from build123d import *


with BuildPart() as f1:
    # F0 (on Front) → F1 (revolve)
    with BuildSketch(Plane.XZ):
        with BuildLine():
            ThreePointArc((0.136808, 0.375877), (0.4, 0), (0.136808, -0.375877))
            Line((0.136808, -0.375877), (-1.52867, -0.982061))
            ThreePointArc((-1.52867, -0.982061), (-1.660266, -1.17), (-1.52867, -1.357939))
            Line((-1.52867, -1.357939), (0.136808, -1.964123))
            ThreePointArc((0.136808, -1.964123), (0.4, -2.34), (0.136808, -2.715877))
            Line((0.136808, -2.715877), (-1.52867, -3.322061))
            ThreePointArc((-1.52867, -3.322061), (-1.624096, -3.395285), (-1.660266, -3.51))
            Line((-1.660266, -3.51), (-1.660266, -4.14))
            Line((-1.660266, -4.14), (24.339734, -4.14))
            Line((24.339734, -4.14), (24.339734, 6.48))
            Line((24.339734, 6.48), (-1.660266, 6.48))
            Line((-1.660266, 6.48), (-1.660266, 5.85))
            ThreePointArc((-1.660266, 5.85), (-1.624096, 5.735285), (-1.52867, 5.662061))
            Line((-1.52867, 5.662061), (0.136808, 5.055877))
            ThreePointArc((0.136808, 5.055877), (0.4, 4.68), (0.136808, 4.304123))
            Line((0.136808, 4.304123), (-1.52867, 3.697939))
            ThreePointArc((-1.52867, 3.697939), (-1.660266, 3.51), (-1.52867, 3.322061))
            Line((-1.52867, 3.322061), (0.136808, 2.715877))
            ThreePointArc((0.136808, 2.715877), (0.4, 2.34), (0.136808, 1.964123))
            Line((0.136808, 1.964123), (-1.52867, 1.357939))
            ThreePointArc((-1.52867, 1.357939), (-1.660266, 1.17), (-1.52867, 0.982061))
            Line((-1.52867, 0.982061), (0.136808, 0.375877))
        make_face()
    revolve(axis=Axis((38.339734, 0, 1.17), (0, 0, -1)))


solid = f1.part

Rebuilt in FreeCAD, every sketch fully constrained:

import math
import FreeCAD as App
import Part
import Sketcher
Q = App.Units.Quantity

doc = App.newDocument("Part")
params = doc.addObject("Spreadsheet::Sheet", "Params")
for row, (alias, value) in enumerate([
    ("sketch1_radius", "0.4 mm"),
    ("sketch1_radius2", "0.200001 mm"),
    ("sketch1_width", "26 mm"),
    ("sketch1_height", "0.63 mm"),
    ("sketch1_height2", "10.62 mm"),
    ("revolution_angle", "360 deg"),
], start=1):
    params.set(f"A{row}", alias)
    params.set(f"B{row}", "=" + value)
    params.setAlias(f"B{row}", alias)

body = doc.addObject("PartDesign::Body", "Body")

sketch1 = body.newObject("Sketcher::SketchObject", "Sketch")
sketch1.AttachmentSupport = (doc.getObject("XZ_Plane"), [""])
sketch1.MapMode = "FlatFace"
sketch1.addGeometry([
    Part.ArcOfCircle(Part.Circle(App.Vector(0, 0, 0), App.Vector(0, 0, 1), 0.4), math.radians(-70.000019), math.radians(70.000019)),
    Part.LineSegment(App.Vector(0.136808, -0.375877, 0), App.Vector(-1.52867, -0.982061, 0)),
    Part.ArcOfCircle(Part.Circle(App.Vector(-1.460265, -1.17, 0), App.Vector(0, 0, 1), 0.200001), math.radians(110.000125), math.radians(249.999875)),
    Part.LineSegment(App.Vector(-1.52867, -1.357939, 0), App.Vector(0.136808, -1.964123, 0)),
    Part.ArcOfCircle(Part.Circle(App.Vector(0, -2.34, 0), App.Vector(0, 0, 1), 0.4), math.radians(-70.000019), math.radians(70.000019)),
    Part.LineSegment(App.Vector(0.136808, -2.715877, 0), App.Vector(-1.52867, -3.322061, 0)),
    Part.ArcOfCircle(Part.Circle(App.Vector(-1.460263, -3.510002, 0), App.Vector(0, 0, 1), 0.200003), math.radians(110.000688), math.radians(179.999437)),
    Part.LineSegment(App.Vector(-1.660266, -3.51, 0), App.Vector(-1.660266, -4.14, 0)),
    Part.LineSegment(App.Vector(-1.660266, -4.14, 0), App.Vector(24.339734, -4.14, 0)),
    Part.LineSegment(App.Vector(24.339734, -4.14, 0), App.Vector(24.339734, 6.48, 0)),
    Part.LineSegment(App.Vector(24.339734, 6.48, 0), App.Vector(-1.660266, 6.48, 0)),
    Part.LineSegment(App.Vector(-1.660266, 6.48, 0), App.Vector(-1.660266, 5.85, 0)),
    Part.ArcOfCircle(Part.Circle(App.Vector(-1.460263, 5.850002, 0), App.Vector(0, 0, 1), 0.200003), math.radians(-179.999437), math.radians(-110.000688)),
    Part.LineSegment(App.Vector(-1.52867, 5.662061, 0), App.Vector(0.136808, 5.055877, 0)),
    Part.ArcOfCircle(Part.Circle(App.Vector(0, 4.68, 0), App.Vector(0, 0, 1), 0.4), math.radians(-70.000019), math.radians(70.000019)),
    Part.LineSegment(App.Vector(0.136808, 4.304123, 0), App.Vector(-1.52867, 3.697939, 0)),
    Part.ArcOfCircle(Part.Circle(App.Vector(-1.460265, 3.51, 0), App.Vector(0, 0, 1), 0.200001), math.radians(110.000125), math.radians(249.999875)),
    Part.LineSegment(App.Vector(-1.52867, 3.322061, 0), App.Vector(0.136808, 2.715877, 0)),
    Part.ArcOfCircle(Part.Circle(App.Vector(0, 2.34, 0), App.Vector(0, 0, 1), 0.4), math.radians(-70.000019), math.radians(70.000019)),
    Part.LineSegment(App.Vector(0.136808, 1.964123, 0), App.Vector(-1.52867, 1.357939, 0)),
    Part.ArcOfCircle(Part.Circle(App.Vector(-1.460265, 1.17, 0), App.Vector(0, 0, 1), 0.200001), math.radians(110.000125), math.radians(249.999875)),
    Part.LineSegment(App.Vector(-1.52867, 0.982061, 0), App.Vector(0.136808, 0.375877, 0)),
], False)
sketch1.addGeometry(Part.LineSegment(App.Vector(38.339734, 6.48, 0), App.Vector(38.339734, -4.14, 0)), True)
sketch1.addConstraint([
    Sketcher.Constraint("Tangent", 0, 1, 1, 1),
    Sketcher.Constraint("Coincident", 1, 2, 2, 1),
    Sketcher.Constraint("Coincident", 2, 2, 3, 1),
    Sketcher.Constraint("Tangent", 3, 2, 4, 2),
    Sketcher.Constraint("Tangent", 4, 1, 5, 1),
    Sketcher.Constraint("Coincident", 5, 2, 6, 1),
    Sketcher.Constraint("Coincident", 6, 2, 7, 1),
    Sketcher.Constraint("Coincident", 7, 2, 8, 1),
    Sketcher.Constraint("Coincident", 8, 2, 9, 1),
    Sketcher.Constraint("Coincident", 9, 2, 10, 1),
    Sketcher.Constraint("Coincident", 10, 2, 11, 1),
    Sketcher.Constraint("Coincident", 11, 2, 12, 1),
    Sketcher.Constraint("Coincident", 12, 2, 13, 1),
    Sketcher.Constraint("Tangent", 13, 2, 14, 2),
    Sketcher.Constraint("Tangent", 14, 1, 15, 1),
    Sketcher.Constraint("Coincident", 15, 2, 16, 1),
    Sketcher.Constraint("Coincident", 16, 2, 17, 1),
    Sketcher.Constraint("Tangent", 17, 2, 18, 2),
    Sketcher.Constraint("Tangent", 18, 1, 19, 1),
    Sketcher.Constraint("Coincident", 19, 2, 20, 1),
    Sketcher.Constraint("Coincident", 20, 2, 21, 1),
    Sketcher.Constraint("Tangent", 21, 2, 0, 2),
    Sketcher.Constraint("Vertical", 7),
    Sketcher.Constraint("Horizontal", 8),
    Sketcher.Constraint("Vertical", 9),
    Sketcher.Constraint("Horizontal", 10),
    Sketcher.Constraint("Vertical", 11),
    Sketcher.Constraint("Vertical", 22),
    Sketcher.Constraint("Coincident", 0, 3, -1, 1),
    Sketcher.Constraint("Equal", 0, 4),
    Sketcher.Constraint("Equal", 6, 12),
    Sketcher.Constraint("Equal", 4, 14),
    Sketcher.Constraint("Equal", 2, 16),
    Sketcher.Constraint("Equal", 14, 18),
    Sketcher.Constraint("Equal", 16, 20),
    Sketcher.Constraint("Symmetric", 4, 3, 18, 3, -1, 1),
    Sketcher.Constraint("Symmetric", 6, 3, 16, 3, -1),
    Sketcher.Constraint("Symmetric", 2, 3, 20, 3, -1),
    Sketcher.Constraint("Symmetric", 5, 2, 16, 2, -1),
    Sketcher.Constraint("PointOnObject", 4, 3, -2),
    Sketcher.Constraint("PointOnObject", 14, 3, -2),
    Sketcher.Constraint("Parallel", 1, 5),
    Sketcher.Constraint("Parallel", 3, 13),
    Sketcher.Constraint("Parallel", 5, 15),
    Sketcher.Constraint("Parallel", 13, 17),
    Sketcher.Constraint("Horizontal", 12, 3, 11, 2),
    Sketcher.Constraint("Horizontal", 10, 2, 22, 1),
    Sketcher.Constraint("Horizontal", 8, 2, 22, 2),
    Sketcher.Constraint("Vertical", 6, 3, 12, 3),
    Sketcher.Constraint("Vertical", 2, 3, 16, 3),
    Sketcher.Constraint("Vertical", 1, 2, 2, 2),
    Sketcher.Constraint("Vertical", 2, 2, 5, 2),
    Sketcher.Constraint("Vertical", 5, 2, 12, 2),
    Sketcher.Constraint("Vertical", 12, 2, 15, 2),
    Sketcher.Constraint("Vertical", 16, 2, 19, 2),
    Sketcher.Constraint("Vertical", 19, 2, 20, 2),
    Sketcher.Constraint("Equal", 7, 11),
    Sketcher.Constraint("Radius", 0, Q("0.4 mm")),
    Sketcher.Constraint("Radius", 2, Q("0.200001 mm")),
    Sketcher.Constraint("DistanceX", 8, 1, 8, 2, Q("26 mm")),
    Sketcher.Constraint("Angle", 1, Q("-160.000013 deg")),
    Sketcher.Constraint("DistanceX", 9, 2, 22, 1, Q("14 mm")),
    Sketcher.Constraint("DistanceY", 7, 2, 7, 1, Q("0.63 mm")),
    Sketcher.Constraint("DistanceY", 9, 1, 9, 2, Q("10.62 mm")),
    Sketcher.Constraint("DistanceY", 7, 2, 4, 3, Q("1.8 mm")),
    Sketcher.Constraint("DistanceX", 1, 2, -1, 1, Q("1.52867 mm")),
])
sketch1.setExpression("Constraints[57]", "Params.sketch1_radius")
sketch1.setExpression("Constraints[58]", "Params.sketch1_radius2")
sketch1.setExpression("Constraints[59]", "Params.sketch1_width")
sketch1.setExpression("Constraints[62]", "Params.sketch1_height")
sketch1.setExpression("Constraints[63]", "Params.sketch1_height2")
revolution = body.newObject("PartDesign::Revolution", "Revolution")
revolution.Profile = sketch1
revolution.ReferenceAxis = (sketch1, ["Axis0"])
revolution.setExpression("Angle", "Params.revolution_angle")

doc.recompute()
